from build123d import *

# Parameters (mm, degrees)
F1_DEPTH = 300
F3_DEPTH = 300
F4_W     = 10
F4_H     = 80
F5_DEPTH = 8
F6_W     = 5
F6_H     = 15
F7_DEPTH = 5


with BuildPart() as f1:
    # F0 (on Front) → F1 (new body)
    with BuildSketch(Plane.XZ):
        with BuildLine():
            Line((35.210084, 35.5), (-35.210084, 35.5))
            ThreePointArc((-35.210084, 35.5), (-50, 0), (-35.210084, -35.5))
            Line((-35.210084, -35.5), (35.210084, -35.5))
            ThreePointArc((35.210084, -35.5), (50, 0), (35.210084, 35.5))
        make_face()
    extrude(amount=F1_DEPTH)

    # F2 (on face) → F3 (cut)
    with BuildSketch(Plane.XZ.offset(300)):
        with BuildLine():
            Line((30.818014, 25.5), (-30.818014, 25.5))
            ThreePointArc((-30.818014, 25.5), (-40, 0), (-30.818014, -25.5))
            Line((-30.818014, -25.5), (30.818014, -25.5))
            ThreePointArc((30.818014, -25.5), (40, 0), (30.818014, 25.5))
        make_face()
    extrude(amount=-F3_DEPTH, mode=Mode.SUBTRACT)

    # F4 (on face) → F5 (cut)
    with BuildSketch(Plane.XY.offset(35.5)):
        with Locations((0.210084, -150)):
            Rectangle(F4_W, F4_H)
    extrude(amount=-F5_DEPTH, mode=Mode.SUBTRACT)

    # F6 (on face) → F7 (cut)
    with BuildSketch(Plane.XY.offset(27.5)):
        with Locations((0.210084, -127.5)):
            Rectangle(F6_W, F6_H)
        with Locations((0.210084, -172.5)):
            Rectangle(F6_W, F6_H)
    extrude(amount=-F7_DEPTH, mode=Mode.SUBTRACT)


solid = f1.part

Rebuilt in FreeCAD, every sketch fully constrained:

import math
import FreeCAD as App
import Part
import Sketcher

doc = App.newDocument("Part")
body = doc.addObject("PartDesign::Body", "Body")

# Sketch on XZ plane
sketch1 = doc.addObject("Sketcher::SketchObject", "Sketch")
body.addObject(sketch1)
sketch1.AttachmentSupport = (doc.XZ_Plane, [""])
sketch1.MapMode = "FlatFace"
sketch1.addGeometry([
    Part.LineSegment(App.Vector(35, 36, 0), App.Vector(-35, 36, 0)),
    Part.ArcOfCircle(Part.Circle(App.Vector(0, 0, 0), App.Vector(0, 0, 1), 50), math.radians(135), math.radians(225)),
    Part.LineSegment(App.Vector(-35, -36, 0), App.Vector(35, -36, 0)),
    Part.ArcOfCircle(Part.Circle(App.Vector(0, 0, 0), App.Vector(0, 0, 1), 50), math.radians(-45), math.radians(45)),
], False)
sketch1.addConstraint([
    Sketcher.Constraint("Coincident", 0, 2, 1, 1),
    Sketcher.Constraint("Coincident", 1, 2, 2, 1),
    Sketcher.Constraint("Coincident", 2, 2, 3, 1),
    Sketcher.Constraint("Coincident", 3, 2, 0, 1),
    Sketcher.Constraint("Horizontal", 0),
    Sketcher.Constraint("Horizontal", 2),
    Sketcher.Constraint("Coincident", 1, 3, -1, 1),
    Sketcher.Constraint("Coincident", 3, 3, -1, 1),
    Sketcher.Constraint("Equal", 1, 3),
    Sketcher.Constraint("Vertical", 0, 2, 1, 2),
    Sketcher.Constraint("Radius", 1, 50.000001),
    Sketcher.Constraint("DistanceY", 1, 2, 0, 2, 71.0),
])
pad1 = doc.addObject("PartDesign::Pad", "Pad")
body.addObject(pad1)
pad1.Profile = sketch1
pad1.Length = 300

# Sketch on XZ plane
sketch2 = doc.addObject("Sketcher::SketchObject", "Sketch001")
body.addObject(sketch2)
sketch2.AttachmentSupport = (doc.XZ_Plane, [""])
sketch2.MapMode = "FlatFace"
sketch2.AttachmentOffset = App.Placement(App.Vector(0, 0, 300), App.Rotation())
sketch2.addGeometry([
    Part.LineSegment(App.Vector(31, 26, 0), App.Vector(-31, 26, 0)),
    Part.ArcOfCircle(Part.Circle(App.Vector(0, 0, 0), App.Vector(0, 0, 1), 40), math.radians(140), math.radians(220)),
    Part.LineSegment(App.Vector(-31, -26, 0), App.Vector(31, -26, 0)),
    Part.ArcOfCircle(Part.Circle(App.Vector(0, 0, 0), App.Vector(0, 0, 1), 40), math.radians(-40), math.radians(40)),
], False)
sketch2.addConstraint([
    Sketcher.Constraint("Coincident", 0, 2, 1, 1),
    Sketcher.Constraint("Coincident", 1, 2, 2, 1),
    Sketcher.Constraint("Coincident", 2, 2, 3, 1),
    Sketcher.Constraint("Coincident", 3, 2, 0, 1),
    Sketcher.Constraint("Horizontal", 0),
    Sketcher.Constraint("Horizontal", 2),
    Sketcher.Constraint("Coincident", 1, 3, -1, 1),
    Sketcher.Constraint("Coincident", 3, 3, -1, 1),
    Sketcher.Constraint("Equal", 1, 3),
    Sketcher.Constraint("Vertical", 0, 2, 1, 2),
    Sketcher.Constraint("Radius", 1, 39.999999),
    Sketcher.Constraint("DistanceY", 1, 2, 0, 2, 51.0),
])
pocket1 = doc.addObject("PartDesign::Pocket", "Pocket")
body.addObject(pocket1)
pocket1.Profile = sketch2
pocket1.Length = 300

# Sketch on XY plane
sketch3 = doc.addObject("Sketcher::SketchObject", "Sketch002")
body.addObject(sketch3)
sketch3.AttachmentSupport = (doc.XY_Plane, [""])
sketch3.MapMode = "FlatFace"
sketch3.AttachmentOffset = App.Placement(App.Vector(0, 0, 35.5), App.Rotation())
sketch3.addGeometry([
    Part.LineSegment(App.Vector(-5, -110, 0), App.Vector(-5, -190, 0)),
    Part.LineSegment(App.Vector(-5, -190, 0), App.Vector(5, -190, 0)),
    Part.LineSegment(App.Vector(5, -190, 0), App.Vector(5, -110, 0)),
    Part.LineSegment(App.Vector(5, -110, 0), App.Vector(-5, -110, 0)),
], False)
sketch3.addConstraint([
    Sketcher.Constraint("Coincident", 0, 2, 1, 1),
    Sketcher.Constraint("Coincident", 1, 2, 2, 1),
    Sketcher.Constraint("Coincident", 2, 2, 3, 1),
    Sketcher.Constraint("Coincident", 3, 2, 0, 1),
    Sketcher.Constraint("Vertical", 0),
    Sketcher.Constraint("Horizontal", 1),
    Sketcher.Constraint("Vertical", 2),
    Sketcher.Constraint("Horizontal", 3),
    Sketcher.Constraint("DistanceX", 1, 1, 1, 2, 10.0),
    Sketcher.Constraint("DistanceY", 0, 2, 0, 1, 80.0),
    Sketcher.Constraint("DistanceY", 0, 2, -1, 1, 190.0),
    Sketcher.Constraint("DistanceX", 0, 2, -1, 1, 4.789916),
])
pocket2 = doc.addObject("PartDesign::Pocket", "Pocket001")
body.addObject(pocket2)
pocket2.Profile = sketch3
pocket2.Length = 8

# Sketch on XY plane
sketch4 = doc.addObject("Sketcher::SketchObject", "Sketch003")
body.addObject(sketch4)
sketch4.AttachmentSupport = (doc.XY_Plane, [""])
sketch4.MapMode = "FlatFace"
sketch4.AttachmentOffset = App.Placement(App.Vector(0, 0, 27.5), App.Rotation())
sketch4.addGeometry([
    Part.LineSegment(App.Vector(-2, -120, 0), App.Vector(-2, -135, 0)),  # 0
    Part.LineSegment(App.Vector(-2, -135, 0), App.Vector(3, -135, 0)),  # 1
    Part.LineSegment(App.Vector(3, -135, 0), App.Vector(3, -120, 0)),  # 2
    Part.LineSegment(App.Vector(3, -120, 0), App.Vector(-2, -120, 0)),  # 3
    Part.LineSegment(App.Vector(-2, -165, 0), App.Vector(-2, -180, 0)),  # 4
    Part.LineSegment(App.Vector(-2, -180, 0), App.Vector(3, -180, 0)),  # 5
    Part.LineSegment(App.Vector(3, -180, 0), App.Vector(3, -165, 0)),  # 6
    Part.LineSegment(App.Vector(3, -165, 0), App.Vector(-2, -165, 0)),  # 7
], False)
sketch4.addConstraint([
    Sketcher.Constraint("Coincident", 0, 2, 1, 1),
    Sketcher.Constraint("Coincident", 1, 2, 2, 1),
    Sketcher.Constraint("Coincident", 2, 2, 3, 1),
    Sketcher.Constraint("Coincident", 3, 2, 0, 1),
    Sketcher.Constraint("Coincident", 4, 2, 5, 1),
    Sketcher.Constraint("Coincident", 5, 2, 6, 1),
    Sketcher.Constraint("Coincident", 6, 2, 7, 1),
    Sketcher.Constraint("Coincident", 7, 2, 4, 1),
    Sketcher.Constraint("Vertical", 0),
    Sketcher.Constraint("Horizontal", 1),
    Sketcher.Constraint("Vertical", 2),
    Sketcher.Constraint("Horizontal", 3),
    Sketcher.Constraint("Vertical", 4),
    Sketcher.Constraint("Horizontal", 5),
    Sketcher.Constraint("Vertical", 6),
    Sketcher.Constraint("Horizontal", 7),
    Sketcher.Constraint("Vertical", 3, 2, 4, 2),
    Sketcher.Constraint("Vertical", 2, 2, 5, 2),
    Sketcher.Constraint("Equal", 2, 4),
    Sketcher.Constraint("DistanceX", 1, 1, 1, 2, 5.0),
    Sketcher.Constraint("DistanceY", 0, 2, 0, 1, 15.0),
    Sketcher.Constraint("DistanceY", 0, 2, -1, 1, 135.0),
    Sketcher.Constraint("DistanceY", 4, 2, -1, 1, 180.0),
    Sketcher.Constraint("DistanceX", 0, 2, -1, 1, 2.289916),
])
pocket3 = doc.addObject("PartDesign::Pocket", "Pocket002")
body.addObject(pocket3)
pocket3.Profile = sketch4
pocket3.Length = 5

doc.recompute()
